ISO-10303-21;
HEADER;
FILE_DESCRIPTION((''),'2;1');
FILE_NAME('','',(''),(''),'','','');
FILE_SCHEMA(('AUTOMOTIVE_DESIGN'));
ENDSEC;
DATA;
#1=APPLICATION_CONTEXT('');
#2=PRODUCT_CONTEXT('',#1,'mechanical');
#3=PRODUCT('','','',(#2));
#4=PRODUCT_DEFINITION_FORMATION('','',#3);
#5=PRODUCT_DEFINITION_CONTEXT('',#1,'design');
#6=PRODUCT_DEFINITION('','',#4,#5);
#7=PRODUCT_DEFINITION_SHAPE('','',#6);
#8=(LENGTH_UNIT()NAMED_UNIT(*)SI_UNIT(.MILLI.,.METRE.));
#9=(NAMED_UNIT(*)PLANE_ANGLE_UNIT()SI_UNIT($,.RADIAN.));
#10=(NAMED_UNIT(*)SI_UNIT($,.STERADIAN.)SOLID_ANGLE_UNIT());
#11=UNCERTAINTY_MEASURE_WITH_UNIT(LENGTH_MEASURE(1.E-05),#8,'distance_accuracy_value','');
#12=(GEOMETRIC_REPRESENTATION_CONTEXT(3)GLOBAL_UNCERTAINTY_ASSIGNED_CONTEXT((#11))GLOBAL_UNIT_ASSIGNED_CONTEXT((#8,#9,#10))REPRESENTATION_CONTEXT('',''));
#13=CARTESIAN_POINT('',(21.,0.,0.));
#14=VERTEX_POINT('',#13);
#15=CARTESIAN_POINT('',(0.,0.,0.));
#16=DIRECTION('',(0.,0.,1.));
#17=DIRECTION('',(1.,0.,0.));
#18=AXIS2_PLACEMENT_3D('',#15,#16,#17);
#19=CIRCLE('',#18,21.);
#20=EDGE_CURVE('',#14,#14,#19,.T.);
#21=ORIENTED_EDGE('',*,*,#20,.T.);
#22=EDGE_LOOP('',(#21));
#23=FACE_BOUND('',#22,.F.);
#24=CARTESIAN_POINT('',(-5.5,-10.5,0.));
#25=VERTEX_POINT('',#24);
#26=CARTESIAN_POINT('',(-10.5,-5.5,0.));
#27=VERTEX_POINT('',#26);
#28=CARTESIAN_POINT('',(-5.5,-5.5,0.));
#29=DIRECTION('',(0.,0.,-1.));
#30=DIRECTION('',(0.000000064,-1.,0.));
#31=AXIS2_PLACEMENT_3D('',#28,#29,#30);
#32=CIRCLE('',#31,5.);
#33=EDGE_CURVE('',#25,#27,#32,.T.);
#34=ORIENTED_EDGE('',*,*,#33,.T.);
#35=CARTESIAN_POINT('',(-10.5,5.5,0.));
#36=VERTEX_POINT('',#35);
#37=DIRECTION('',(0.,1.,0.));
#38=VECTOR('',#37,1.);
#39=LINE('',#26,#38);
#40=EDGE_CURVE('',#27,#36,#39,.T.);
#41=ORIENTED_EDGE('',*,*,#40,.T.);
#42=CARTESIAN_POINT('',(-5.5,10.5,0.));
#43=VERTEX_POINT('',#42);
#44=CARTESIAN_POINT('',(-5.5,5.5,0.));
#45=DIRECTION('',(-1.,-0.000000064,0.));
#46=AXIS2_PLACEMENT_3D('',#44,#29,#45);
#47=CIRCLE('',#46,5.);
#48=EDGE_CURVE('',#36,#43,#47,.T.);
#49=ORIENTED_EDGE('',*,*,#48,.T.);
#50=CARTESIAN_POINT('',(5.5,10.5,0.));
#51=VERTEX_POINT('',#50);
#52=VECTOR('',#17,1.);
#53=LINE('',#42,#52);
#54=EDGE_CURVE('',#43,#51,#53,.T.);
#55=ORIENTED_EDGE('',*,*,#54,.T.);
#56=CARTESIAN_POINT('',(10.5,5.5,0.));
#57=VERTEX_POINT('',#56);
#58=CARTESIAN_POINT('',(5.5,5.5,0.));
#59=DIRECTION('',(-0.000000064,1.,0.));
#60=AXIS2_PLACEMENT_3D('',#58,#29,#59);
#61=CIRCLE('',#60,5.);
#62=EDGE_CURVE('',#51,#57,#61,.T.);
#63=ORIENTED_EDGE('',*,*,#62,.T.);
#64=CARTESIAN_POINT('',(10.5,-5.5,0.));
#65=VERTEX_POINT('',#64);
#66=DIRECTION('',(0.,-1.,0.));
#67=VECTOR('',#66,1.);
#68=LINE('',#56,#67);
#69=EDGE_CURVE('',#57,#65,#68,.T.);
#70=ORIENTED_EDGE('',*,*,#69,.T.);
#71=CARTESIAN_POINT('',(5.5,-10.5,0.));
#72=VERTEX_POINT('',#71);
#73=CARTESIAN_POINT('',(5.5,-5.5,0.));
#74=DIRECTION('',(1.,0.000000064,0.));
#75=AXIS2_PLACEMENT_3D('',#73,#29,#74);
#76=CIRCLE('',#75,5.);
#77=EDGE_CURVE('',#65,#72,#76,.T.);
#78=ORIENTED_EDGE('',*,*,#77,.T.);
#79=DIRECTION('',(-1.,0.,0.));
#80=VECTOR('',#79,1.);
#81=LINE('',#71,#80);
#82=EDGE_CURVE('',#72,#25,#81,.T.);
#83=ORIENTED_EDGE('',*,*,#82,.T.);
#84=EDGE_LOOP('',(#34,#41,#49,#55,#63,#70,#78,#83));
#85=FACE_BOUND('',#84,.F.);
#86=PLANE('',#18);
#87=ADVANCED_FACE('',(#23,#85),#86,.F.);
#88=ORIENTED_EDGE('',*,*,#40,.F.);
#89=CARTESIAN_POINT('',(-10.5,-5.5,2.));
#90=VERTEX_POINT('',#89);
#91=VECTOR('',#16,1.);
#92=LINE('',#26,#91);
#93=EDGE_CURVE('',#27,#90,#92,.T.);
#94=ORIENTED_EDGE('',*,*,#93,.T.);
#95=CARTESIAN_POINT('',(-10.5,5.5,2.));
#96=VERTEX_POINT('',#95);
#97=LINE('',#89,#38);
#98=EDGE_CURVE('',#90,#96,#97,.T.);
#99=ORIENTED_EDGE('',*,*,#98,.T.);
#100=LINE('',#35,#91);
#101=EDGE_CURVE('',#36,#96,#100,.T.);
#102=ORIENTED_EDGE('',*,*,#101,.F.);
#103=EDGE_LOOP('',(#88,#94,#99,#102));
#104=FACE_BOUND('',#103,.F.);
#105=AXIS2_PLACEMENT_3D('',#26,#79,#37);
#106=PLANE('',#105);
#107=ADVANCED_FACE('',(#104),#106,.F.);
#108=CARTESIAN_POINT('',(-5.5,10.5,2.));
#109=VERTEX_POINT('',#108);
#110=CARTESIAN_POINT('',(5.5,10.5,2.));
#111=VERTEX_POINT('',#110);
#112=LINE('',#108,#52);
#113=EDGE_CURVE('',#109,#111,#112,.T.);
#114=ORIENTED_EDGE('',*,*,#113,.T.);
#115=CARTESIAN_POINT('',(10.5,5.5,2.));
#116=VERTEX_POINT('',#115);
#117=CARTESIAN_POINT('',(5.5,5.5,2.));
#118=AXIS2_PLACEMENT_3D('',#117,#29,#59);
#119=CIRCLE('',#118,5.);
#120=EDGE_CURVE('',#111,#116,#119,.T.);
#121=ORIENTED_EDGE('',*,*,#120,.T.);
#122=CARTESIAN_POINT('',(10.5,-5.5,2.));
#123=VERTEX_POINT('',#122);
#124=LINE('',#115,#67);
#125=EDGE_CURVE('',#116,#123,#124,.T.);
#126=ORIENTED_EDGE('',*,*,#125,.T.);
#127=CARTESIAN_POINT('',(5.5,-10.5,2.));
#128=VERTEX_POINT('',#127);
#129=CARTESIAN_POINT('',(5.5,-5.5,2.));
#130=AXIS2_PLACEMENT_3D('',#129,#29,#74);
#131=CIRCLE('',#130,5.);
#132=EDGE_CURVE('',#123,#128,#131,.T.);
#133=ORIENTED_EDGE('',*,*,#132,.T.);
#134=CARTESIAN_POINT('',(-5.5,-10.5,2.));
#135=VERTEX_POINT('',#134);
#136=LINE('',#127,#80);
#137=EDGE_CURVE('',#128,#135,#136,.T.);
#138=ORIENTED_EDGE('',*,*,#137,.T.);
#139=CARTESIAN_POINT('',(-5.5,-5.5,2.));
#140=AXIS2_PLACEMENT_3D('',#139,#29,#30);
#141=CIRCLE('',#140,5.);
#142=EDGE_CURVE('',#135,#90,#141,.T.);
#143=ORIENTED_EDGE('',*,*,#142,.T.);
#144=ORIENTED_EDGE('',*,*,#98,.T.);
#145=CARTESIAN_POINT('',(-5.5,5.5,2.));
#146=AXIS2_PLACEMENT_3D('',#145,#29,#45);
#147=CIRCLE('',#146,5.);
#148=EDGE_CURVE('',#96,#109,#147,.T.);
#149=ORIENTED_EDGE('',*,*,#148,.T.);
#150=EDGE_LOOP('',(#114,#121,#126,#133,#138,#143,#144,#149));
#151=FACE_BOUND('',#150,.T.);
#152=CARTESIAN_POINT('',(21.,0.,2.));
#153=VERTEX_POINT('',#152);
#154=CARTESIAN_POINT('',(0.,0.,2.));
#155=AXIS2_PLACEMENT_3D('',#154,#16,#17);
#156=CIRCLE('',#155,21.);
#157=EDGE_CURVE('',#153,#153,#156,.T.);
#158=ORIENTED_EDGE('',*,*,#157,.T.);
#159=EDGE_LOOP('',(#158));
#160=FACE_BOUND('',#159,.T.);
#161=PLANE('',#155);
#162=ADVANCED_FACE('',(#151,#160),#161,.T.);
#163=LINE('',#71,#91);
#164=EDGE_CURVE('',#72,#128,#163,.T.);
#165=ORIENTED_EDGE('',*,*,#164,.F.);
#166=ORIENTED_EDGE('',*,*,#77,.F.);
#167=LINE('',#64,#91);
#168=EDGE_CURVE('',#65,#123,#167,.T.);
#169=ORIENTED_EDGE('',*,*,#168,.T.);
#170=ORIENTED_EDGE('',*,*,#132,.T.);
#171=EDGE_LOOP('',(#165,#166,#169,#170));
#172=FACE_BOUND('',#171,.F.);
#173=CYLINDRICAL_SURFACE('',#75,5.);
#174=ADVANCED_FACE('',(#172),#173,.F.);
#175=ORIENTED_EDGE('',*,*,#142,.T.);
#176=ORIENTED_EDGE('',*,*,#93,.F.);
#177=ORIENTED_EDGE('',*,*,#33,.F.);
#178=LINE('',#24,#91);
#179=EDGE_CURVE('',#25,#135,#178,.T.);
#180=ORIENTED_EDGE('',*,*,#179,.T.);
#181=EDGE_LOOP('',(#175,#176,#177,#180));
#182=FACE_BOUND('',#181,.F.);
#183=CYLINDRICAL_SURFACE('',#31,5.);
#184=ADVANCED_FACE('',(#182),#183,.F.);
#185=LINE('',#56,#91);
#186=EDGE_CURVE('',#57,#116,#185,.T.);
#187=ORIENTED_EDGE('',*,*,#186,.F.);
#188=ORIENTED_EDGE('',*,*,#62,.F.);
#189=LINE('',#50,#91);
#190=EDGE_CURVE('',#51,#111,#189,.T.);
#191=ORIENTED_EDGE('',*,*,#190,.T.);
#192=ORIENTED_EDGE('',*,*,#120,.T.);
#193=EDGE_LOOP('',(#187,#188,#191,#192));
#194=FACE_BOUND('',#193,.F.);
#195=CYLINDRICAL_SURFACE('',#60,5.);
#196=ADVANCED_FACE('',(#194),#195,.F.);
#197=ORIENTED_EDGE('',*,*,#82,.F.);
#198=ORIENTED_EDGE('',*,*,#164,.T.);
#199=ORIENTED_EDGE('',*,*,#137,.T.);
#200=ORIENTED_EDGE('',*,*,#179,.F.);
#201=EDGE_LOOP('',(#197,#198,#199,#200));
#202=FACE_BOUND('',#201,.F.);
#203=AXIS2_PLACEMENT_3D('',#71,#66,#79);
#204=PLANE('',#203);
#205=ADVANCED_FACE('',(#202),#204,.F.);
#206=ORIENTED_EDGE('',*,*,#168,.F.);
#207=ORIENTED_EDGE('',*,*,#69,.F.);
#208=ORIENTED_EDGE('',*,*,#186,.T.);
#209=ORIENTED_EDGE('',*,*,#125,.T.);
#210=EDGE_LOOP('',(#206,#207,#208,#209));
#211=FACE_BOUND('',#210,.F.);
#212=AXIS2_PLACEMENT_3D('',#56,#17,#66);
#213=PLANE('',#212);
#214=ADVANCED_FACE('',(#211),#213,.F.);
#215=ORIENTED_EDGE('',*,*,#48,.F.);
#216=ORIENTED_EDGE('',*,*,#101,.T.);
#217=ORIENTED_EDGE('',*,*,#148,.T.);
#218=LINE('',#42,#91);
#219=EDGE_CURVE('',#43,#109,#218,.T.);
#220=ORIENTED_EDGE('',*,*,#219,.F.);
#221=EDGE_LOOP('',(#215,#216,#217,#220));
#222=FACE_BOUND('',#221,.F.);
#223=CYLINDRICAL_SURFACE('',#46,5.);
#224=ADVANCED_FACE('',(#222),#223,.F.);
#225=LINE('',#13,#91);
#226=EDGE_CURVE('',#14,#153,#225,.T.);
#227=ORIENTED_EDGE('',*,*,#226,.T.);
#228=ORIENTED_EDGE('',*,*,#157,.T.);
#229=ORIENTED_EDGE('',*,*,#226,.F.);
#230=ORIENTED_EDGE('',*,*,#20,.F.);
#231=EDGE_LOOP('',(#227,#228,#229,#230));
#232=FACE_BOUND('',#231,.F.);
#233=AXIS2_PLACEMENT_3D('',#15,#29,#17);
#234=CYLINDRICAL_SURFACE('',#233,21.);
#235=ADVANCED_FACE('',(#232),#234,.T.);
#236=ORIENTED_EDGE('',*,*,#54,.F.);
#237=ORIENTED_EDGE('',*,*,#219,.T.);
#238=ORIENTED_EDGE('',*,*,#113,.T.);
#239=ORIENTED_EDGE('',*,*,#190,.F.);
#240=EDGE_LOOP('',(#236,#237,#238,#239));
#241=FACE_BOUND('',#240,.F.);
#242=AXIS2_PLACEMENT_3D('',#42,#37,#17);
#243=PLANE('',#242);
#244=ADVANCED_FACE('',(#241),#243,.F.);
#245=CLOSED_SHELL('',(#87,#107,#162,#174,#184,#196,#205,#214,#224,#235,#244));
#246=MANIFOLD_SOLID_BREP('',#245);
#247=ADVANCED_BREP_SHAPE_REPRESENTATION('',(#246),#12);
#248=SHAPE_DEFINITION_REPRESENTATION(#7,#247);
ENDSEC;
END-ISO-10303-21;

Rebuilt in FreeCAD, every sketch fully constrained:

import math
import FreeCAD as App
import Part
import Sketcher

doc = App.newDocument("Part")
body = doc.addObject("PartDesign::Body", "Body")

sketch1 = body.newObject("Sketcher::SketchObject", "Sketch")
sketch1.AttachmentSupport = (doc.getObject("XY_Plane"), [""])
sketch1.MapMode = "FlatFace"
sketch1.addGeometry([
    Part.Circle(App.Vector(0, 0, 0), App.Vector(0, 0, 1), 21),
    Part.ArcOfCircle(Part.Circle(App.Vector(5.5, -5.5, 0), App.Vector(0, 0, 1), 5), math.radians(-90), math.radians(0)),
    Part.LineSegment(App.Vector(5.5, -10.5, 0), App.Vector(-5.5, -10.5, 0)),
    Part.ArcOfCircle(Part.Circle(App.Vector(-5.5, -5.5, 0), App.Vector(0, 0, 1), 5), math.radians(180), math.radians(270)),
    Part.LineSegment(App.Vector(-10.5, -5.5, 0), App.Vector(-10.5, 5.5, 0)),
    Part.ArcOfCircle(Part.Circle(App.Vector(-5.5, 5.5, 0), App.Vector(0, 0, 1), 5), math.radians(90), math.radians(180)),
    Part.LineSegment(App.Vector(-5.5, 10.5, 0), App.Vector(5.5, 10.5, 0)),
    Part.ArcOfCircle(Part.Circle(App.Vector(5.5, 5.5, 0), App.Vector(0, 0, 1), 5), math.radians(0), math.radians(90)),
    Part.LineSegment(App.Vector(10.5, 5.5, 0), App.Vector(10.5, -5.5, 0)),
], False)
sketch1.addConstraint([
    Sketcher.Constraint("Tangent", 1, 1, 2, 1),
    Sketcher.Constraint("Tangent", 2, 2, 3, 2),
    Sketcher.Constraint("Tangent", 3, 1, 4, 1),
    Sketcher.Constraint("Tangent", 4, 2, 5, 2),
    Sketcher.Constraint("Tangent", 5, 1, 6, 1),
    Sketcher.Constraint("Tangent", 6, 2, 7, 2),
    Sketcher.Constraint("Tangent", 7, 1, 8, 1),
    Sketcher.Constraint("Tangent", 8, 2, 1, 2),
    Sketcher.Constraint("Horizontal", 2),
    Sketcher.Constraint("Vertical", 4),
    Sketcher.Constraint("Horizontal", 6),
    Sketcher.Constraint("Vertical", 8),
    Sketcher.Constraint("Coincident", 0, 3, -1, 1),
    Sketcher.Constraint("Equal", 1, 3),
    Sketcher.Constraint("Equal", 3, 5),
    Sketcher.Constraint("Equal", 5, 7),
    Sketcher.Constraint("Symmetric", 1, 3, 5, 3, -1, 1),
    Sketcher.Constraint("Equal", 6, 4),
    Sketcher.Constraint("Diameter", 0, 42.0),
    Sketcher.Constraint("Radius", 1, 5.0),
    Sketcher.Constraint("DistanceX", 2, 2, 2, 1, 11.0),
])
pad1 = body.newObject("PartDesign::Pad", "Pad")
pad1.Profile = sketch1
pad1.Length = 2

doc.recompute()
